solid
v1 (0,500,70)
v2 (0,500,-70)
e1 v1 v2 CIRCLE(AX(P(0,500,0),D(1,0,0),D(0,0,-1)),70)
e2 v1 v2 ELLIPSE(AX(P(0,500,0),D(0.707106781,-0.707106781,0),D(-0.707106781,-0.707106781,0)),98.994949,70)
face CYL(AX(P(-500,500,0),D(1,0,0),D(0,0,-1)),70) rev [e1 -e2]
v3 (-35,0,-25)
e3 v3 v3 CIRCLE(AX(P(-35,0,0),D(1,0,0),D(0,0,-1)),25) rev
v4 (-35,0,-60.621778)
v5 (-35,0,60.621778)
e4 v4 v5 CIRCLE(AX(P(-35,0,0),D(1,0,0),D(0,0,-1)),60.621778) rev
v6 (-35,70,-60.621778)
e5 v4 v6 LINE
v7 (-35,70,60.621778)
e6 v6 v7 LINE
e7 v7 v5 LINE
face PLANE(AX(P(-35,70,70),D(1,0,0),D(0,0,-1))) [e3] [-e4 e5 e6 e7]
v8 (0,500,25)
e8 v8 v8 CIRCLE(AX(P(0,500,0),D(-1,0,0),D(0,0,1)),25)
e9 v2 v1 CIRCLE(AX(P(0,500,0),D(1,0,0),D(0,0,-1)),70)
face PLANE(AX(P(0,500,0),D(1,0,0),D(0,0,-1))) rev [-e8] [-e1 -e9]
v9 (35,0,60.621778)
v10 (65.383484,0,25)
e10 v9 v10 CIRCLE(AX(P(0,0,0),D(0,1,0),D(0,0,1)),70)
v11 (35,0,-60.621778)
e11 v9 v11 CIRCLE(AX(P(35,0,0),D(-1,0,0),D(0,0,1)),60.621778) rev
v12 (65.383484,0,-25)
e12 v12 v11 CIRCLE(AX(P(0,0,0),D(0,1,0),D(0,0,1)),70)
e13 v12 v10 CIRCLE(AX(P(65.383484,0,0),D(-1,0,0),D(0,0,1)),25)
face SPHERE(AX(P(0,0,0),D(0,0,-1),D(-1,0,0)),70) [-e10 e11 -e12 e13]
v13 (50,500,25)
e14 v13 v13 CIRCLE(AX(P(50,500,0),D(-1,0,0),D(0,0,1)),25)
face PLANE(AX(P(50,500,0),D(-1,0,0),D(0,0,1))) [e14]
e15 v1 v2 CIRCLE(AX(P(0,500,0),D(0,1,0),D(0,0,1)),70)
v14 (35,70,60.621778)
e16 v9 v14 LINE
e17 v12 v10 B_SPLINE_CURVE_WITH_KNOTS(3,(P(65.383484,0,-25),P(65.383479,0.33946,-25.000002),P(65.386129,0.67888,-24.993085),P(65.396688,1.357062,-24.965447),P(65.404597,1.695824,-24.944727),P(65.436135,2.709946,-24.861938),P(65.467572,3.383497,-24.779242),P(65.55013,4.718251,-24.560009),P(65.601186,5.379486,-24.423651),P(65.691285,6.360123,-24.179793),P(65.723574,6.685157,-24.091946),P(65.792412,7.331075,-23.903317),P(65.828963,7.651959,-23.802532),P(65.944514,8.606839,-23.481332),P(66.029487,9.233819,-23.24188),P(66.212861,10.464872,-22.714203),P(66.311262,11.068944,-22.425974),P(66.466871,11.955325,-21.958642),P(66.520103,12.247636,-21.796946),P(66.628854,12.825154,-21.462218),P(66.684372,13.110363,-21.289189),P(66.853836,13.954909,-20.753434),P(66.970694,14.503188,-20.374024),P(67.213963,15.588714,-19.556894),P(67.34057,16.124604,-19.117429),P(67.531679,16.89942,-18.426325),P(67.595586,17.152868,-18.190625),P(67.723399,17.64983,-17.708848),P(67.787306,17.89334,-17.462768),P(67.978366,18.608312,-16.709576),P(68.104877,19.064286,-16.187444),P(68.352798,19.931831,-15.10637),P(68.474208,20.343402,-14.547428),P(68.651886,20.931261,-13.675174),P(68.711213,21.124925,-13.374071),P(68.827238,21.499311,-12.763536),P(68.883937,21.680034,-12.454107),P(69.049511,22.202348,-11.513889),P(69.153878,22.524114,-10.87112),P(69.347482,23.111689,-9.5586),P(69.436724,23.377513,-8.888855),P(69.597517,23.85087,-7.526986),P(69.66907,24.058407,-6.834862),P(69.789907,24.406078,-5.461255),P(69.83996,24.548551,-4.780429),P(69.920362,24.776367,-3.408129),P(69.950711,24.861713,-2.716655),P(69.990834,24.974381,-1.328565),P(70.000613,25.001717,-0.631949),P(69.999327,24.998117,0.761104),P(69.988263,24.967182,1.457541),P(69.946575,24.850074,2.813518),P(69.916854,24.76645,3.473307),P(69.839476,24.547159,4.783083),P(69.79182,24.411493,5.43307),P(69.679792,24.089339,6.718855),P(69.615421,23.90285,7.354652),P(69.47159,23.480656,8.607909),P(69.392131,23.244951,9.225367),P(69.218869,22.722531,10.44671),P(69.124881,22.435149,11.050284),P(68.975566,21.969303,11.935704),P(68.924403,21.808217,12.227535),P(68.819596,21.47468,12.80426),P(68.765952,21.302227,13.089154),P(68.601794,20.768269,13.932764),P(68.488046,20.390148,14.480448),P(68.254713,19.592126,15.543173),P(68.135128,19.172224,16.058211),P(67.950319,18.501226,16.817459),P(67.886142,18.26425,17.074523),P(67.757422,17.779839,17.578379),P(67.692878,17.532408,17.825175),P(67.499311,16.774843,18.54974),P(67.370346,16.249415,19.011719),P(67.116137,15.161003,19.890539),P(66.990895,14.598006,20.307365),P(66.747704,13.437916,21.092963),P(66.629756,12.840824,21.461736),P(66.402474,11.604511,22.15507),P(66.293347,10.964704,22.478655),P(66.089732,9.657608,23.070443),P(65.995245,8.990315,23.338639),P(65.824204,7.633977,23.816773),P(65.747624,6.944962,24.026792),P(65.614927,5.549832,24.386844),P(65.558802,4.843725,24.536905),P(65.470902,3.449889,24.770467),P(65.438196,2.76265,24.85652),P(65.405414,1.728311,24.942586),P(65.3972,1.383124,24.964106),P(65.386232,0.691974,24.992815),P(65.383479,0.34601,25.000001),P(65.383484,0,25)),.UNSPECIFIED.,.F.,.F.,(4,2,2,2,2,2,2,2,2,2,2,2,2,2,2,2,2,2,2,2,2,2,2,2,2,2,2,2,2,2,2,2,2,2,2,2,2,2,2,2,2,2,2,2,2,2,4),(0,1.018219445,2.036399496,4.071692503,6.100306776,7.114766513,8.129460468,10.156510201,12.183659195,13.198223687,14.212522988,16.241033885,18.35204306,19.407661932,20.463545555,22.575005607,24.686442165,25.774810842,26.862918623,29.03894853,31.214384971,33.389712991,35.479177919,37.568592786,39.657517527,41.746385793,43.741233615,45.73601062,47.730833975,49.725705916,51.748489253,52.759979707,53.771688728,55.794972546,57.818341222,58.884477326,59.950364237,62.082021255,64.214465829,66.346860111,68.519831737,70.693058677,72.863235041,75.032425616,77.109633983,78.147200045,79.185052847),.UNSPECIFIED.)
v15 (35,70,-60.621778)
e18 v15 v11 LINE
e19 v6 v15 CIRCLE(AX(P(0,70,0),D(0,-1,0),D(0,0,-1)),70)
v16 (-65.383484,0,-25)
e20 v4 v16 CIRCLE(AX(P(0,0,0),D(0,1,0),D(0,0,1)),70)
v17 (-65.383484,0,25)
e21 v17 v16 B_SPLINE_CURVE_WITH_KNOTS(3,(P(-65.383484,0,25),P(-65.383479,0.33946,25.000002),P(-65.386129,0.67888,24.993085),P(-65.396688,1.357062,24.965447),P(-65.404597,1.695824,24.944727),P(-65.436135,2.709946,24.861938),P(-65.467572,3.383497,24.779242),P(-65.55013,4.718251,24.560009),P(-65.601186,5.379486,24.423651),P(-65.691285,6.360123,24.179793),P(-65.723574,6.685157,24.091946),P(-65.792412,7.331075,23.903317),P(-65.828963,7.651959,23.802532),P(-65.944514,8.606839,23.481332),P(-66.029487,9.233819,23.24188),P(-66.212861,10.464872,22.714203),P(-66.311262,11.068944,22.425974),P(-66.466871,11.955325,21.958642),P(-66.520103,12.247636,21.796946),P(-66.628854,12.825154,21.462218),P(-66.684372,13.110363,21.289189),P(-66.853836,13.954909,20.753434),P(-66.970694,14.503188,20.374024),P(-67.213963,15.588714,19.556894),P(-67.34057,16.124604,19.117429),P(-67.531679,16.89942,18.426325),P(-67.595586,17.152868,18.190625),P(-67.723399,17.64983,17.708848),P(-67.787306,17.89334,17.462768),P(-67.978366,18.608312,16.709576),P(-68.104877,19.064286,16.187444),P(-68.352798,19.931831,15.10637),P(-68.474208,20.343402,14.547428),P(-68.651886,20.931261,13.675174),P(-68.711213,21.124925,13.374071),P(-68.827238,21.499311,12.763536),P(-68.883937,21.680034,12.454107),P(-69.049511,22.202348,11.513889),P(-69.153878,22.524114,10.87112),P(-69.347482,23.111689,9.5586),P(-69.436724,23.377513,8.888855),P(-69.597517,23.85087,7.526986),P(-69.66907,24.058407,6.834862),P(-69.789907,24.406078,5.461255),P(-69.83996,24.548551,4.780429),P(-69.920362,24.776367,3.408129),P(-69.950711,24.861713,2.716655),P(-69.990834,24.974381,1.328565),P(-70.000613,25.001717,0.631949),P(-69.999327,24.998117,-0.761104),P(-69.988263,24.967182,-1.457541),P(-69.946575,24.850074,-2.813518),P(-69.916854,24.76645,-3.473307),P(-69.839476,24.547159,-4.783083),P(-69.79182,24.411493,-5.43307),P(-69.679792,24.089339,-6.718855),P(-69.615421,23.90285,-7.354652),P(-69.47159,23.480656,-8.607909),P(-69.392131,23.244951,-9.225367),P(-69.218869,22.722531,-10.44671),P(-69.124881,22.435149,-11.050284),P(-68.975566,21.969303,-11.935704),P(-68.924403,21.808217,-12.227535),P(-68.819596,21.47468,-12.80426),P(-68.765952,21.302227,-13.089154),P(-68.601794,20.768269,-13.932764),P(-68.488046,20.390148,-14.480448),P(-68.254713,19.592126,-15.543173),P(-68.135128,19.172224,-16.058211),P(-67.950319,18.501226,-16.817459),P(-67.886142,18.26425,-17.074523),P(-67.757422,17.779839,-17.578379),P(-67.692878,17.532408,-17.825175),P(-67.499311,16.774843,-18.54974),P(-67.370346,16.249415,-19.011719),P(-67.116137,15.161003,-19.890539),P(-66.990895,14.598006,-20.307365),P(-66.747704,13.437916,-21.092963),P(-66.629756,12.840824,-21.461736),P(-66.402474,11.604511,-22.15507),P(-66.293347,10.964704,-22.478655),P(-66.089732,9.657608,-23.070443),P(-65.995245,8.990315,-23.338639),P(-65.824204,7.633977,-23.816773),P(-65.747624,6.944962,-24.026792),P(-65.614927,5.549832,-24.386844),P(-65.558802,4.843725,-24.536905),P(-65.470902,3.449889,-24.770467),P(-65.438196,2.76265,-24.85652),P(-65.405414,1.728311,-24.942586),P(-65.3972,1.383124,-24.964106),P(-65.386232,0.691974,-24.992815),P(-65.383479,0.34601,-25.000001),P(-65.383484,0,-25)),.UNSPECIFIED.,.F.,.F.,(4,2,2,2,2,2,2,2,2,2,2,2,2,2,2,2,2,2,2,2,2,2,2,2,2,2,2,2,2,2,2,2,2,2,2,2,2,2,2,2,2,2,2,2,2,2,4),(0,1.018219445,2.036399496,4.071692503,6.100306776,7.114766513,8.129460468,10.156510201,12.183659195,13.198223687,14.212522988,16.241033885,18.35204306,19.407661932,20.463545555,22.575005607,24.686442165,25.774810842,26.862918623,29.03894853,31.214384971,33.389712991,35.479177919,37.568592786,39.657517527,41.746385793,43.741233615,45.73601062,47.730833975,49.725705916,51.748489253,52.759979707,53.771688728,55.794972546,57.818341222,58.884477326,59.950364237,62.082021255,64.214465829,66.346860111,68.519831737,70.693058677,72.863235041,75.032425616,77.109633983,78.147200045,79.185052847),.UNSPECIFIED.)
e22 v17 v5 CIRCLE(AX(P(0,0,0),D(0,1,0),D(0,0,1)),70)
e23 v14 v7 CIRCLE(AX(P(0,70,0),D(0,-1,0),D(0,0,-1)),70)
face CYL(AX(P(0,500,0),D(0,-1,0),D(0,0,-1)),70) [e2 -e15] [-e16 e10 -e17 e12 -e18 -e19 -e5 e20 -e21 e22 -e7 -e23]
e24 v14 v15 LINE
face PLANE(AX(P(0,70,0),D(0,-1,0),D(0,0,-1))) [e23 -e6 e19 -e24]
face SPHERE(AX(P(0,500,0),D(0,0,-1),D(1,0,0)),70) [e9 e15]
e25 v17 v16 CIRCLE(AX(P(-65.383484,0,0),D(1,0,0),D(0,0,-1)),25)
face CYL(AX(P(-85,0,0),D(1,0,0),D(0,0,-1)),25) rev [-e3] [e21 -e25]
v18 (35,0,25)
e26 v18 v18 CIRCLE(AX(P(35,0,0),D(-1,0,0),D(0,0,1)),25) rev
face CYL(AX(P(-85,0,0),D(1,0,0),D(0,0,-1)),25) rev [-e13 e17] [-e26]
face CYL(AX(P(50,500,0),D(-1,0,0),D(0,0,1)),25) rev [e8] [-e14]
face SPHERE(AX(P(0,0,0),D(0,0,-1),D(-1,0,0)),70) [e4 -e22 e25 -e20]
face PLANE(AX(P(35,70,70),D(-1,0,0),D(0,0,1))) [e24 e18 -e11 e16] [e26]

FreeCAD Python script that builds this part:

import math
import FreeCAD as App
import Part
import Sketcher

V = App.Vector


def add_polygon(sketch, points):
    """Adds a closed chain of lines whose ends are joined by coincident constraints."""
    first, n = sketch.GeometryCount, len(points)
    for a, b in zip(points, points[1:] + points[:1]):
        sketch.addGeometry(Part.LineSegment(App.Vector(*a, 0), App.Vector(*b, 0)), False)
    for i in range(n):
        sketch.addConstraint(Sketcher.Constraint("Coincident", first + i, 2, first + (i + 1) % n, 1))

doc = App.newDocument("Part")
body = doc.addObject("PartDesign::Body", "Body")

# Sketch on XZ plane
sketch1 = body.newObject("Sketcher::SketchObject", "Sketch")
sketch1.AttachmentSupport = (doc.getObject("XZ_Plane"), [""])
sketch1.MapMode = "FlatFace"
sketch1.addGeometry(Part.Circle(V(0, 0, 0), V(0, 0, 1), 70), False)
sketch1.addConstraint(Sketcher.Constraint("Coincident", 0, 3, -1, 1))
sketch1.addConstraint(Sketcher.Constraint("Diameter", 0, 140.0))
pad1 = body.newObject("PartDesign::Pad", "Pad")
pad1.Profile = sketch1
pad1.Length = 500
pad1.Reversed = True

# Sketch on XZ plane
sketch2 = body.newObject("Sketcher::SketchObject", "Sketch001")
sketch2.AttachmentSupport = (doc.getObject("XZ_Plane"), [""])
sketch2.MapMode = "FlatFace"
sketch2.addGeometry(Part.ArcOfCircle(Part.Circle(V(0, 0, 0), V(0, 0, 1), 70), math.radians(90), math.radians(270)), False)
sketch2.addGeometry(Part.LineSegment(V(0, -70, 0), V(0, 70, 0)), False)
sketch2.addConstraint(Sketcher.Constraint("Coincident", 0, 1, 1, 2))
sketch2.addConstraint(Sketcher.Constraint("Coincident", 1, 1, 0, 2))
sketch2.addConstraint(Sketcher.Constraint("Vertical", 1))
sketch2.addConstraint(Sketcher.Constraint("Coincident", 0, 3, -1, 1))
sketch2.addConstraint(Sketcher.Constraint("PointOnObject", 0, 1, -2))
sketch2.addConstraint(Sketcher.Constraint("Radius", 0, 70.0))
revolution = body.newObject("PartDesign::Revolution", "Revolution")
revolution.Profile = sketch2
revolution.ReferenceAxis = (sketch2, ["V_Axis"])
revolution.Angle = 360

# Sketch on XZ plane
sketch3 = body.newObject("Sketcher::SketchObject", "Sketch002")
sketch3.AttachmentSupport = (doc.getObject("XZ_Plane"), [""])
sketch3.MapMode = "FlatFace"
sketch3.AttachmentOffset = App.Placement(V(0, 0, -500), App.Rotation())
sketch3.addGeometry(Part.LineSegment(V(0, -70, 0), V(0, 70, 0)), False)
sketch3.addGeometry(Part.ArcOfCircle(Part.Circle(V(0, 0, 0), V(0, 0, 1), 70), math.radians(-90), math.radians(90)), False)
sketch3.addConstraint(Sketcher.Constraint("Coincident", 0, 1, 1, 1))
sketch3.addConstraint(Sketcher.Constraint("Coincident", 1, 2, 0, 2))
sketch3.addConstraint(Sketcher.Constraint("Vertical", 0))
sketch3.addConstraint(Sketcher.Constraint("Coincident", 1, 3, -1, 1))
sketch3.addConstraint(Sketcher.Constraint("PointOnObject", 0, 1, -2))
sketch3.addConstraint(Sketcher.Constraint("Radius", 1, 70.0))
revolution2 = body.newObject("PartDesign::Revolution", "Revolution001")
revolution2.Profile = sketch3
revolution2.ReferenceAxis = (sketch3, ["V_Axis"])
revolution2.Angle = 360

# Sketch on YZ plane
sketch4 = body.newObject("Sketcher::SketchObject", "Sketch003")
sketch4.AttachmentSupport = (doc.getObject("YZ_Plane"), [""])
sketch4.MapMode = "FlatFace"
sketch4.addGeometry(Part.Circle(V(500, 0, 0), V(0, 0, 1), 70), False)
sketch4.addConstraint(Sketcher.Constraint("PointOnObject", 0, 3, -1))
sketch4.addConstraint(Sketcher.Constraint("Diameter", 0, 140.0))
sketch4.addConstraint(Sketcher.Constraint("DistanceX", -1, 1, 0, 3, 500.0))
pocket1 = body.newObject("PartDesign::Pocket", "Pocket")
pocket1.Profile = sketch4
pocket1.Length = 500

# Sketch on XZ plane
sketch5 = body.newObject("Sketcher::SketchObject", "Sketch004")
sketch5.AttachmentSupport = (doc.getObject("XZ_Plane"), [""])
sketch5.MapMode = "FlatFace"
add_polygon(sketch5, [(-35, -70), (-35, 70), (35, 70), (35, -70)])  # lines 0-3
sketch5.addConstraint(Sketcher.Constraint("Vertical", 0))
sketch5.addConstraint(Sketcher.Constraint("Horizontal", 1))
sketch5.addConstraint(Sketcher.Constraint("Vertical", 2))
sketch5.addConstraint(Sketcher.Constraint("Horizontal", 3))
sketch5.addConstraint(Sketcher.Constraint("Symmetric", 0, 2, 2, 2, -1, 1))
sketch5.addConstraint(Sketcher.Constraint("DistanceX", 1, 1, 1, 2, 70.0))
sketch5.addConstraint(Sketcher.Constraint("DistanceY", 0, 1, 0, 2, 140.0))
pocket2 = body.newObject("PartDesign::Pocket", "Pocket001")
pocket2.Profile = sketch5
pocket2.Type = "TwoLengths"
pocket2.Length = 70
pocket2.Length2 = 100

# Sketch on YZ plane
sketch6 = body.newObject("Sketcher::SketchObject", "Sketch005")
sketch6.AttachmentSupport = (doc.getObject("YZ_Plane"), [""])
sketch6.MapMode = "FlatFace"
sketch6.AttachmentOffset = App.Placement(V(0, 0, 35), App.Rotation())
sketch6.addGeometry(Part.Circle(V(0, 0, 0), V(0, 0, 1), 25), False)
sketch6.addConstraint(Sketcher.Constraint("Coincident", 0, 3, -1, 1))
sketch6.addConstraint(Sketcher.Constraint("Diameter", 0, 50.0))
pocket3 = body.newObject("PartDesign::Pocket", "Pocket002")
pocket3.Profile = sketch6
pocket3.Type = "ThroughAll"
pocket3.Midplane = True

# Sketch on YZ plane
sketch7 = body.newObject("Sketcher::SketchObject", "Sketch006")
sketch7.AttachmentSupport = (doc.getObject("YZ_Plane"), [""])
sketch7.MapMode = "FlatFace"
sketch7.addGeometry(Part.Circle(V(500, 0, 0), V(0, 0, 1), 25), False)
sketch7.addConstraint(Sketcher.Constraint("PointOnObject", 0, 3, -1))
sketch7.addConstraint(Sketcher.Constraint("Diameter", 0, 50.0))
sketch7.addConstraint(Sketcher.Constraint("DistanceX", -1, 1, 0, 3, 500.0))
pocket4 = body.newObject("PartDesign::Pocket", "Pocket003")
pocket4.Profile = sketch7
pocket4.Length = 50
pocket4.Reversed = True

doc.recompute()
